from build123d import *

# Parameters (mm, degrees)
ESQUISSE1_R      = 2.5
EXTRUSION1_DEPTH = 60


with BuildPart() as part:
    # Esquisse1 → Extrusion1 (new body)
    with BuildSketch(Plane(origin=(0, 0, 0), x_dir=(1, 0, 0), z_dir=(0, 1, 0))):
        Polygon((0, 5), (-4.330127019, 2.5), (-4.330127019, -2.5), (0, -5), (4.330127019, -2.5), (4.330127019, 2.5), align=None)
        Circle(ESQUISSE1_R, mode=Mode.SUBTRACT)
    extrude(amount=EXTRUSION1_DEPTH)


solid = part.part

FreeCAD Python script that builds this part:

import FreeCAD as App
import Part
import Sketcher

V = App.Vector
Q = App.Units.Quantity

doc = App.newDocument("Part")
body = doc.addObject("PartDesign::Body", "Body")

sketch1 = body.newObject("Sketcher::SketchObject", "Sketch")
sketch1.AttachmentSupport = (doc.getObject("XZ_Plane"), [""])
sketch1.MapMode = "FlatFace"
sketch1.addGeometry(Part.LineSegment(V(0, -5, 0), V(-4.3, -2.5, 0)), False)
sketch1.addGeometry(Part.LineSegment(V(-4.3, -2.5, 0), V(-4.3, 2.5, 0)), False)
sketch1.addGeometry(Part.LineSegment(V(-4.3, 2.5, 0), V(0, 5, 0)), False)
sketch1.addGeometry(Part.LineSegment(V(0, 5, 0), V(4.3, 2.5, 0)), False)
sketch1.addGeometry(Part.LineSegment(V(4.3, 2.5, 0), V(4.3, -2.5, 0)), False)
sketch1.addGeometry(Part.LineSegment(V(4.3, -2.5, 0), V(0, -5, 0)), False)
sketch1.addGeometry(Part.Circle(V(0, 0, 0), V(0, 0, 1), 2.5), False)
sketch1.addConstraint(Sketcher.Constraint("Coincident", 0, 2, 1, 1))
sketch1.addConstraint(Sketcher.Constraint("Coincident", 1, 2, 2, 1))
sketch1.addConstraint(Sketcher.Constraint("Coincident", 2, 2, 3, 1))
sketch1.addConstraint(Sketcher.Constraint("Coincident", 3, 2, 4, 1))
sketch1.addConstraint(Sketcher.Constraint("Coincident", 4, 2, 5, 1))
sketch1.addConstraint(Sketcher.Constraint("Coincident", 5, 2, 0, 1))
sketch1.addConstraint(Sketcher.Constraint("Vertical", 1))
sketch1.addConstraint(Sketcher.Constraint("Vertical", 4))
sketch1.addConstraint(Sketcher.Constraint("Coincident", 6, 3, -1, 1))
sketch1.addConstraint(Sketcher.Constraint("Symmetric", 0, 2, 3, 2, -1, 1))
sketch1.addConstraint(Sketcher.Constraint("Symmetric", 2, 2, 5, 2, -1, 1))
sketch1.addConstraint(Sketcher.Constraint("PointOnObject", 2, 2, -2))
sketch1.addConstraint(Sketcher.Constraint("Parallel", 2, 5))
sketch1.addConstraint(Sketcher.Constraint("Horizontal", 1, 2, 3, 2))
sketch1.addConstraint(Sketcher.Constraint("Diameter", 6, Q("5 mm")))
sketch1.addConstraint(Sketcher.Constraint("DistanceY", 1, 1, 1, 2, Q("5 mm")))
sketch1.addConstraint(Sketcher.Constraint("Angle", 0, Q("150 deg")))
sketch1.addConstraint(Sketcher.Constraint("Distance", 0, Q("5 mm")))
pad1 = body.newObject("PartDesign::Pad", "Pad")
pad1.Profile = sketch1
pad1.Length = 60
pad1.Reversed = True

doc.recompute()
